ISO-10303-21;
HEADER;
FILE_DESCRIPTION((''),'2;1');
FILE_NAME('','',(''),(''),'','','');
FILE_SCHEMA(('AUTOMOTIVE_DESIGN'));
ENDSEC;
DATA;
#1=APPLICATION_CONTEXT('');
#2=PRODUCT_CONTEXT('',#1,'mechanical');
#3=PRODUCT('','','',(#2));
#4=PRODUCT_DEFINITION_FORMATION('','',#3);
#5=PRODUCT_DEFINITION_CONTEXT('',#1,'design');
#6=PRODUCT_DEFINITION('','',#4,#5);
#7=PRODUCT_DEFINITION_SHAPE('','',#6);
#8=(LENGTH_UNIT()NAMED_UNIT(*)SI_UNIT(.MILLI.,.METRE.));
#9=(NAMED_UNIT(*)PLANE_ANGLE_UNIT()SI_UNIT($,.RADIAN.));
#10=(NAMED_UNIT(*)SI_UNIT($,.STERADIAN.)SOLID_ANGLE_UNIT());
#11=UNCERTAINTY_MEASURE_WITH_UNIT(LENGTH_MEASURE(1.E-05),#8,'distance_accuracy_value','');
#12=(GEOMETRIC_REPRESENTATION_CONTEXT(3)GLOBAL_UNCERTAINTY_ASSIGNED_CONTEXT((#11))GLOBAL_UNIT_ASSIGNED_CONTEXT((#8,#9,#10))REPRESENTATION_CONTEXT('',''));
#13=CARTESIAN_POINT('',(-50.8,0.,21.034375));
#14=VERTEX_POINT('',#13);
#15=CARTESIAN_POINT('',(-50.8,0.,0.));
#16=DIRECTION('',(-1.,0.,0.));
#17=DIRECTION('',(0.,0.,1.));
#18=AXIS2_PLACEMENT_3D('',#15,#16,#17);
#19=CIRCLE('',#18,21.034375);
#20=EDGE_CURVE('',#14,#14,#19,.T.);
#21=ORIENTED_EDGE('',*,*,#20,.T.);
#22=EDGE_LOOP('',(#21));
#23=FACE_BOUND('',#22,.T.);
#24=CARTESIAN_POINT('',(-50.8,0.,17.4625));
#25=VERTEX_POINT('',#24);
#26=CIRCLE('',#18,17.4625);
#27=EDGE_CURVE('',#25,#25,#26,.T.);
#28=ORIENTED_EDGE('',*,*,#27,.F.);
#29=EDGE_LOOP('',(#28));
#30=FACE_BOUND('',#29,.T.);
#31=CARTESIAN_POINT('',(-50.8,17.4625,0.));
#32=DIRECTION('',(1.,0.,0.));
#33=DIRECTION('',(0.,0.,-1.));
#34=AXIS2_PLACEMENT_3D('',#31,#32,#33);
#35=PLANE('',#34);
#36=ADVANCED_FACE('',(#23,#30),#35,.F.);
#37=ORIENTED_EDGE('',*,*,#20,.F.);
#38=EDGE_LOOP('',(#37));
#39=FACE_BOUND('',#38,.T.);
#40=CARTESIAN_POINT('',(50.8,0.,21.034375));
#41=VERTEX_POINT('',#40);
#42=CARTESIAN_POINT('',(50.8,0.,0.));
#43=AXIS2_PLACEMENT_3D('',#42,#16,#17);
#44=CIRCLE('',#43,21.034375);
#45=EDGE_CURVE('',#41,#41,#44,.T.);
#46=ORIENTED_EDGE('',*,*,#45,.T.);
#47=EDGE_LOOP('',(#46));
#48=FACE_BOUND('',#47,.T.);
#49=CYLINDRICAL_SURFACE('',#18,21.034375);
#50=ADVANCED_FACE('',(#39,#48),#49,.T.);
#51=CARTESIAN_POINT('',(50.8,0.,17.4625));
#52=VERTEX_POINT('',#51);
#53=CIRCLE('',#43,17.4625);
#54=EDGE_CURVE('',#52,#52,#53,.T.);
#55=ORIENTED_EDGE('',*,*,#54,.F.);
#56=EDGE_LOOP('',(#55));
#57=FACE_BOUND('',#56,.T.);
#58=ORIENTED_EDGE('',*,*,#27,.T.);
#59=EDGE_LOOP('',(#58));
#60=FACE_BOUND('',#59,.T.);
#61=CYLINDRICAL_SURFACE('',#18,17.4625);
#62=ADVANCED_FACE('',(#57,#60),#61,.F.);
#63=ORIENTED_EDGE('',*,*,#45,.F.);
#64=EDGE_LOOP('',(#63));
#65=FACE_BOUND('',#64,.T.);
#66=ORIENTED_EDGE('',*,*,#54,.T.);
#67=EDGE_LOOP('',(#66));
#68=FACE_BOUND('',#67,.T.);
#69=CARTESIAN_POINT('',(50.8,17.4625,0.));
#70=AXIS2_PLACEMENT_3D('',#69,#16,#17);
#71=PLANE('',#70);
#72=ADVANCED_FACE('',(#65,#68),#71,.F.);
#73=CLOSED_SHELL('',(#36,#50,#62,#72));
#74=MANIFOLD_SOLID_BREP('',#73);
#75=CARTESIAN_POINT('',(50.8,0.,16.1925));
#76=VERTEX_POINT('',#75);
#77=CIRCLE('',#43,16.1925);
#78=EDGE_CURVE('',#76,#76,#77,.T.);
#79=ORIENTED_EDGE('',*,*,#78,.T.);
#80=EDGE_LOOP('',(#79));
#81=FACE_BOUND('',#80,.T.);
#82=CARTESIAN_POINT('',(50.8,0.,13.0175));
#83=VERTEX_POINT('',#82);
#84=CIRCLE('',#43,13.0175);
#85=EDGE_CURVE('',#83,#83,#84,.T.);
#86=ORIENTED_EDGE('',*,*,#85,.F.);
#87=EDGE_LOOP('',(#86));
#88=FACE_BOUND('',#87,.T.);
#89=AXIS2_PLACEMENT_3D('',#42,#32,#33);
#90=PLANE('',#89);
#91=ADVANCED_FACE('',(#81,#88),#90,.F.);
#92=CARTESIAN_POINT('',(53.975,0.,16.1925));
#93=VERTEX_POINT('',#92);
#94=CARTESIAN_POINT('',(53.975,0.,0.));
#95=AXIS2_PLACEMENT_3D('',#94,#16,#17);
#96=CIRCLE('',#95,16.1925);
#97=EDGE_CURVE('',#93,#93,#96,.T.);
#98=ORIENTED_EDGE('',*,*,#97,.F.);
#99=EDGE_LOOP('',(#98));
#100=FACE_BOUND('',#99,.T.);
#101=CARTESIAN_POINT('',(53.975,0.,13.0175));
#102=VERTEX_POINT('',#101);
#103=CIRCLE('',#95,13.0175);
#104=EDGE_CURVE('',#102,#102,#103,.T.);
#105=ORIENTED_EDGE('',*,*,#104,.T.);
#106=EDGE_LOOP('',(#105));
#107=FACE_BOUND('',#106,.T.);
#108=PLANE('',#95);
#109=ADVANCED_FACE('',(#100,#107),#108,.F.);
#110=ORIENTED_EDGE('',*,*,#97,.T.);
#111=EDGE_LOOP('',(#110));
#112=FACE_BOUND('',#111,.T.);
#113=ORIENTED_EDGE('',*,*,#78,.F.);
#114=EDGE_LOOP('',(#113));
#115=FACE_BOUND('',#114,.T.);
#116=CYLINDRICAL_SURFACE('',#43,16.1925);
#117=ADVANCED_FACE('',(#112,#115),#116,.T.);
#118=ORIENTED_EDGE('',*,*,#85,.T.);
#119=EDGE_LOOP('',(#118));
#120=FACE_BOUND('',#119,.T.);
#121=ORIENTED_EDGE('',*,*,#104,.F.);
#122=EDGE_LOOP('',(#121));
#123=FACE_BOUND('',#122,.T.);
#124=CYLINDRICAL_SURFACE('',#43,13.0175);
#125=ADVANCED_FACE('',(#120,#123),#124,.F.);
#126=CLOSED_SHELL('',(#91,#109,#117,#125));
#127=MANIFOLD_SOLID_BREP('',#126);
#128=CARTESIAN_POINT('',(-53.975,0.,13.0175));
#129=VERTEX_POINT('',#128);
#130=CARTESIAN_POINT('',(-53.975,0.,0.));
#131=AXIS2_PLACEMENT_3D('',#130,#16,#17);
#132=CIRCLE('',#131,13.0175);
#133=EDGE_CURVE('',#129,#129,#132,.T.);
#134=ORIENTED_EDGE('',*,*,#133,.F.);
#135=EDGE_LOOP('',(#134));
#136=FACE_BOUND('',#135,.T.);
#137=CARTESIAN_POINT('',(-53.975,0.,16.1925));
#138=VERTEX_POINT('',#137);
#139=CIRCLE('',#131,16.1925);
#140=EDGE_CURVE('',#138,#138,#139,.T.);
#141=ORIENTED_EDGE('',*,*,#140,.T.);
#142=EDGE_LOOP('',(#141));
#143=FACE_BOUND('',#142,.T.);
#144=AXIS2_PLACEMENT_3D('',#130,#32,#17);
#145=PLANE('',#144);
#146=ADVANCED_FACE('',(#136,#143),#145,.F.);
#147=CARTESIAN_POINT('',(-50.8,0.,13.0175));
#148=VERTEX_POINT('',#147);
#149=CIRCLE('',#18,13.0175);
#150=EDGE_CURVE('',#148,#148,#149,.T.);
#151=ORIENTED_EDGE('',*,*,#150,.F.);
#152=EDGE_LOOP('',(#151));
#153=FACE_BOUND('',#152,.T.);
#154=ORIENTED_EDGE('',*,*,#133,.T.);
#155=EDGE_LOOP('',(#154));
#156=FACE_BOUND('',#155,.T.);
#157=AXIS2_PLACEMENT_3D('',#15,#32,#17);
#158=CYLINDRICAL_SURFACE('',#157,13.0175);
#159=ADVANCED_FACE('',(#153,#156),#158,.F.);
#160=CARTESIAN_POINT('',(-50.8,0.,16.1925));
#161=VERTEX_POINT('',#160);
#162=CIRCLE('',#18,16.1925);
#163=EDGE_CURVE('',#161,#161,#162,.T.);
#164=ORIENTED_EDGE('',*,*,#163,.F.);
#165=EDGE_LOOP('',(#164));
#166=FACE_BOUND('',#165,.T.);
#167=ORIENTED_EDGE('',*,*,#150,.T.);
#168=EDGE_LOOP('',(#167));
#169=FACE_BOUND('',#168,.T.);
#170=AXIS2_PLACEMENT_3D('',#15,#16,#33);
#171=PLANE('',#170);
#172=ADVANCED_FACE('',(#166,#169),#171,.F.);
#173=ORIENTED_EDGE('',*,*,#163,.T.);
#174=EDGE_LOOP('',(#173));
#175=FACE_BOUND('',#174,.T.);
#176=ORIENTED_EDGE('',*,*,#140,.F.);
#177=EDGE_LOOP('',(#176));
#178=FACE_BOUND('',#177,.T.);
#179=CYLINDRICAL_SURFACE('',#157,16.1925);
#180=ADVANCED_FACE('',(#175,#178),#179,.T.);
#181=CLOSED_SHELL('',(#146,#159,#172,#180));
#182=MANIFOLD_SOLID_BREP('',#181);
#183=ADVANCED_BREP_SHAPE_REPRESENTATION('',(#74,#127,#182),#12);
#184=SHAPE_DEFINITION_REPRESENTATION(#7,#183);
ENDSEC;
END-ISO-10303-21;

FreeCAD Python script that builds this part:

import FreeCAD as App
import Part
import Sketcher
Q = App.Units.Quantity

doc = App.newDocument("Part")
body = doc.addObject("PartDesign::Body", "Body")

# Sketch on XY plane
sketch1 = body.newObject("Sketcher::SketchObject", "Sketch")
sketch1.AttachmentSupport = (doc.getObject("XY_Plane"), [""])
sketch1.MapMode = "FlatFace"
sketch1.addGeometry(Part.LineSegment(App.Vector(-50.8, 21, 0), App.Vector(-50.8, 17.5, 0)), False)
sketch1.addGeometry(Part.LineSegment(App.Vector(-50.8, 17.5, 0), App.Vector(50.8, 17.5, 0)), False)
sketch1.addGeometry(Part.LineSegment(App.Vector(50.8, 17.5, 0), App.Vector(50.8, 21, 0)), False)
sketch1.addGeometry(Part.LineSegment(App.Vector(50.8, 21, 0), App.Vector(-50.8, 21, 0)), False)
sketch1.addConstraint(Sketcher.Constraint("Coincident", 0, 2, 1, 1))
sketch1.addConstraint(Sketcher.Constraint("Coincident", 1, 2, 2, 1))
sketch1.addConstraint(Sketcher.Constraint("Coincident", 2, 2, 3, 1))
sketch1.addConstraint(Sketcher.Constraint("Coincident", 3, 2, 0, 1))
sketch1.addConstraint(Sketcher.Constraint("Vertical", 0))
sketch1.addConstraint(Sketcher.Constraint("Horizontal", 1))
sketch1.addConstraint(Sketcher.Constraint("Vertical", 2))
sketch1.addConstraint(Sketcher.Constraint("Horizontal", 3))
sketch1.addConstraint(Sketcher.Constraint("DistanceX", 1, 1, 1, 2, Q("4 in")))
sketch1.addConstraint(Sketcher.Constraint("DistanceX", 0, 2, -1, 1, Q("2 in")))
sketch1.addConstraint(Sketcher.Constraint("DistanceY", 0, 2, 0, 1, Q("0.140625 in")))
sketch1.addConstraint(Sketcher.Constraint("DistanceY", -1, 1, 0, 2, Q("0.6875 in")))
revolution = body.newObject("PartDesign::Revolution", "Revolution")
revolution.Profile = sketch1
revolution.ReferenceAxis = (sketch1, ["H_Axis"])
revolution.Angle = 360
body2 = doc.addObject("PartDesign::Body", "Body001")

# Sketch on XY plane
sketch2 = body2.newObject("Sketcher::SketchObject", "Sketch001")
sketch2.AttachmentSupport = (doc.getObject("XY_Plane001"), [""])
sketch2.MapMode = "FlatFace"
sketch2.addGeometry(Part.LineSegment(App.Vector(50.8, 16.2, 0), App.Vector(50.8, 13, 0)), False)
sketch2.addGeometry(Part.LineSegment(App.Vector(50.8, 13, 0), App.Vector(54, 13, 0)), False)
sketch2.addGeometry(Part.LineSegment(App.Vector(54, 13, 0), App.Vector(54, 16.2, 0)), False)
sketch2.addGeometry(Part.LineSegment(App.Vector(54, 16.2, 0), App.Vector(50.8, 16.2, 0)), False)
sketch2.addConstraint(Sketcher.Constraint("Coincident", 0, 2, 1, 1))
sketch2.addConstraint(Sketcher.Constraint("Coincident", 1, 2, 2, 1))
sketch2.addConstraint(Sketcher.Constraint("Coincident", 2, 2, 3, 1))
sketch2.addConstraint(Sketcher.Constraint("Coincident", 3, 2, 0, 1))
sketch2.addConstraint(Sketcher.Constraint("Vertical", 0))
sketch2.addConstraint(Sketcher.Constraint("Horizontal", 1))
sketch2.addConstraint(Sketcher.Constraint("Vertical", 2))
sketch2.addConstraint(Sketcher.Constraint("Horizontal", 3))
sketch2.addConstraint(Sketcher.Constraint("Equal", 3, 0))
sketch2.addConstraint(Sketcher.Constraint("DistanceX", -1, 1, 0, 2, Q("2 in")))
sketch2.addConstraint(Sketcher.Constraint("DistanceX", 1, 1, 1, 2, Q("0.125 in")))
sketch2.addConstraint(Sketcher.Constraint("DistanceY", -1, 1, 0, 2, Q("0.5125 in")))
revolution2 = body2.newObject("PartDesign::Revolution", "Revolution001")
revolution2.Profile = sketch2
revolution2.ReferenceAxis = (sketch2, ["H_Axis"])
revolution2.Angle = 360
body3 = doc.addObject("PartDesign::Body", "Body002")
doc.recompute()

mirroring = doc.addObject("Part::Mirroring", "Mirroring")
mirroring.Source = body2
mirroring.Base = App.Vector(0, 0, 0)
mirroring.Normal = App.Vector(1, 0, 0)
body3.BaseFeature = mirroring
doc.recompute()
mirroring.Visibility = False

doc.recompute()
